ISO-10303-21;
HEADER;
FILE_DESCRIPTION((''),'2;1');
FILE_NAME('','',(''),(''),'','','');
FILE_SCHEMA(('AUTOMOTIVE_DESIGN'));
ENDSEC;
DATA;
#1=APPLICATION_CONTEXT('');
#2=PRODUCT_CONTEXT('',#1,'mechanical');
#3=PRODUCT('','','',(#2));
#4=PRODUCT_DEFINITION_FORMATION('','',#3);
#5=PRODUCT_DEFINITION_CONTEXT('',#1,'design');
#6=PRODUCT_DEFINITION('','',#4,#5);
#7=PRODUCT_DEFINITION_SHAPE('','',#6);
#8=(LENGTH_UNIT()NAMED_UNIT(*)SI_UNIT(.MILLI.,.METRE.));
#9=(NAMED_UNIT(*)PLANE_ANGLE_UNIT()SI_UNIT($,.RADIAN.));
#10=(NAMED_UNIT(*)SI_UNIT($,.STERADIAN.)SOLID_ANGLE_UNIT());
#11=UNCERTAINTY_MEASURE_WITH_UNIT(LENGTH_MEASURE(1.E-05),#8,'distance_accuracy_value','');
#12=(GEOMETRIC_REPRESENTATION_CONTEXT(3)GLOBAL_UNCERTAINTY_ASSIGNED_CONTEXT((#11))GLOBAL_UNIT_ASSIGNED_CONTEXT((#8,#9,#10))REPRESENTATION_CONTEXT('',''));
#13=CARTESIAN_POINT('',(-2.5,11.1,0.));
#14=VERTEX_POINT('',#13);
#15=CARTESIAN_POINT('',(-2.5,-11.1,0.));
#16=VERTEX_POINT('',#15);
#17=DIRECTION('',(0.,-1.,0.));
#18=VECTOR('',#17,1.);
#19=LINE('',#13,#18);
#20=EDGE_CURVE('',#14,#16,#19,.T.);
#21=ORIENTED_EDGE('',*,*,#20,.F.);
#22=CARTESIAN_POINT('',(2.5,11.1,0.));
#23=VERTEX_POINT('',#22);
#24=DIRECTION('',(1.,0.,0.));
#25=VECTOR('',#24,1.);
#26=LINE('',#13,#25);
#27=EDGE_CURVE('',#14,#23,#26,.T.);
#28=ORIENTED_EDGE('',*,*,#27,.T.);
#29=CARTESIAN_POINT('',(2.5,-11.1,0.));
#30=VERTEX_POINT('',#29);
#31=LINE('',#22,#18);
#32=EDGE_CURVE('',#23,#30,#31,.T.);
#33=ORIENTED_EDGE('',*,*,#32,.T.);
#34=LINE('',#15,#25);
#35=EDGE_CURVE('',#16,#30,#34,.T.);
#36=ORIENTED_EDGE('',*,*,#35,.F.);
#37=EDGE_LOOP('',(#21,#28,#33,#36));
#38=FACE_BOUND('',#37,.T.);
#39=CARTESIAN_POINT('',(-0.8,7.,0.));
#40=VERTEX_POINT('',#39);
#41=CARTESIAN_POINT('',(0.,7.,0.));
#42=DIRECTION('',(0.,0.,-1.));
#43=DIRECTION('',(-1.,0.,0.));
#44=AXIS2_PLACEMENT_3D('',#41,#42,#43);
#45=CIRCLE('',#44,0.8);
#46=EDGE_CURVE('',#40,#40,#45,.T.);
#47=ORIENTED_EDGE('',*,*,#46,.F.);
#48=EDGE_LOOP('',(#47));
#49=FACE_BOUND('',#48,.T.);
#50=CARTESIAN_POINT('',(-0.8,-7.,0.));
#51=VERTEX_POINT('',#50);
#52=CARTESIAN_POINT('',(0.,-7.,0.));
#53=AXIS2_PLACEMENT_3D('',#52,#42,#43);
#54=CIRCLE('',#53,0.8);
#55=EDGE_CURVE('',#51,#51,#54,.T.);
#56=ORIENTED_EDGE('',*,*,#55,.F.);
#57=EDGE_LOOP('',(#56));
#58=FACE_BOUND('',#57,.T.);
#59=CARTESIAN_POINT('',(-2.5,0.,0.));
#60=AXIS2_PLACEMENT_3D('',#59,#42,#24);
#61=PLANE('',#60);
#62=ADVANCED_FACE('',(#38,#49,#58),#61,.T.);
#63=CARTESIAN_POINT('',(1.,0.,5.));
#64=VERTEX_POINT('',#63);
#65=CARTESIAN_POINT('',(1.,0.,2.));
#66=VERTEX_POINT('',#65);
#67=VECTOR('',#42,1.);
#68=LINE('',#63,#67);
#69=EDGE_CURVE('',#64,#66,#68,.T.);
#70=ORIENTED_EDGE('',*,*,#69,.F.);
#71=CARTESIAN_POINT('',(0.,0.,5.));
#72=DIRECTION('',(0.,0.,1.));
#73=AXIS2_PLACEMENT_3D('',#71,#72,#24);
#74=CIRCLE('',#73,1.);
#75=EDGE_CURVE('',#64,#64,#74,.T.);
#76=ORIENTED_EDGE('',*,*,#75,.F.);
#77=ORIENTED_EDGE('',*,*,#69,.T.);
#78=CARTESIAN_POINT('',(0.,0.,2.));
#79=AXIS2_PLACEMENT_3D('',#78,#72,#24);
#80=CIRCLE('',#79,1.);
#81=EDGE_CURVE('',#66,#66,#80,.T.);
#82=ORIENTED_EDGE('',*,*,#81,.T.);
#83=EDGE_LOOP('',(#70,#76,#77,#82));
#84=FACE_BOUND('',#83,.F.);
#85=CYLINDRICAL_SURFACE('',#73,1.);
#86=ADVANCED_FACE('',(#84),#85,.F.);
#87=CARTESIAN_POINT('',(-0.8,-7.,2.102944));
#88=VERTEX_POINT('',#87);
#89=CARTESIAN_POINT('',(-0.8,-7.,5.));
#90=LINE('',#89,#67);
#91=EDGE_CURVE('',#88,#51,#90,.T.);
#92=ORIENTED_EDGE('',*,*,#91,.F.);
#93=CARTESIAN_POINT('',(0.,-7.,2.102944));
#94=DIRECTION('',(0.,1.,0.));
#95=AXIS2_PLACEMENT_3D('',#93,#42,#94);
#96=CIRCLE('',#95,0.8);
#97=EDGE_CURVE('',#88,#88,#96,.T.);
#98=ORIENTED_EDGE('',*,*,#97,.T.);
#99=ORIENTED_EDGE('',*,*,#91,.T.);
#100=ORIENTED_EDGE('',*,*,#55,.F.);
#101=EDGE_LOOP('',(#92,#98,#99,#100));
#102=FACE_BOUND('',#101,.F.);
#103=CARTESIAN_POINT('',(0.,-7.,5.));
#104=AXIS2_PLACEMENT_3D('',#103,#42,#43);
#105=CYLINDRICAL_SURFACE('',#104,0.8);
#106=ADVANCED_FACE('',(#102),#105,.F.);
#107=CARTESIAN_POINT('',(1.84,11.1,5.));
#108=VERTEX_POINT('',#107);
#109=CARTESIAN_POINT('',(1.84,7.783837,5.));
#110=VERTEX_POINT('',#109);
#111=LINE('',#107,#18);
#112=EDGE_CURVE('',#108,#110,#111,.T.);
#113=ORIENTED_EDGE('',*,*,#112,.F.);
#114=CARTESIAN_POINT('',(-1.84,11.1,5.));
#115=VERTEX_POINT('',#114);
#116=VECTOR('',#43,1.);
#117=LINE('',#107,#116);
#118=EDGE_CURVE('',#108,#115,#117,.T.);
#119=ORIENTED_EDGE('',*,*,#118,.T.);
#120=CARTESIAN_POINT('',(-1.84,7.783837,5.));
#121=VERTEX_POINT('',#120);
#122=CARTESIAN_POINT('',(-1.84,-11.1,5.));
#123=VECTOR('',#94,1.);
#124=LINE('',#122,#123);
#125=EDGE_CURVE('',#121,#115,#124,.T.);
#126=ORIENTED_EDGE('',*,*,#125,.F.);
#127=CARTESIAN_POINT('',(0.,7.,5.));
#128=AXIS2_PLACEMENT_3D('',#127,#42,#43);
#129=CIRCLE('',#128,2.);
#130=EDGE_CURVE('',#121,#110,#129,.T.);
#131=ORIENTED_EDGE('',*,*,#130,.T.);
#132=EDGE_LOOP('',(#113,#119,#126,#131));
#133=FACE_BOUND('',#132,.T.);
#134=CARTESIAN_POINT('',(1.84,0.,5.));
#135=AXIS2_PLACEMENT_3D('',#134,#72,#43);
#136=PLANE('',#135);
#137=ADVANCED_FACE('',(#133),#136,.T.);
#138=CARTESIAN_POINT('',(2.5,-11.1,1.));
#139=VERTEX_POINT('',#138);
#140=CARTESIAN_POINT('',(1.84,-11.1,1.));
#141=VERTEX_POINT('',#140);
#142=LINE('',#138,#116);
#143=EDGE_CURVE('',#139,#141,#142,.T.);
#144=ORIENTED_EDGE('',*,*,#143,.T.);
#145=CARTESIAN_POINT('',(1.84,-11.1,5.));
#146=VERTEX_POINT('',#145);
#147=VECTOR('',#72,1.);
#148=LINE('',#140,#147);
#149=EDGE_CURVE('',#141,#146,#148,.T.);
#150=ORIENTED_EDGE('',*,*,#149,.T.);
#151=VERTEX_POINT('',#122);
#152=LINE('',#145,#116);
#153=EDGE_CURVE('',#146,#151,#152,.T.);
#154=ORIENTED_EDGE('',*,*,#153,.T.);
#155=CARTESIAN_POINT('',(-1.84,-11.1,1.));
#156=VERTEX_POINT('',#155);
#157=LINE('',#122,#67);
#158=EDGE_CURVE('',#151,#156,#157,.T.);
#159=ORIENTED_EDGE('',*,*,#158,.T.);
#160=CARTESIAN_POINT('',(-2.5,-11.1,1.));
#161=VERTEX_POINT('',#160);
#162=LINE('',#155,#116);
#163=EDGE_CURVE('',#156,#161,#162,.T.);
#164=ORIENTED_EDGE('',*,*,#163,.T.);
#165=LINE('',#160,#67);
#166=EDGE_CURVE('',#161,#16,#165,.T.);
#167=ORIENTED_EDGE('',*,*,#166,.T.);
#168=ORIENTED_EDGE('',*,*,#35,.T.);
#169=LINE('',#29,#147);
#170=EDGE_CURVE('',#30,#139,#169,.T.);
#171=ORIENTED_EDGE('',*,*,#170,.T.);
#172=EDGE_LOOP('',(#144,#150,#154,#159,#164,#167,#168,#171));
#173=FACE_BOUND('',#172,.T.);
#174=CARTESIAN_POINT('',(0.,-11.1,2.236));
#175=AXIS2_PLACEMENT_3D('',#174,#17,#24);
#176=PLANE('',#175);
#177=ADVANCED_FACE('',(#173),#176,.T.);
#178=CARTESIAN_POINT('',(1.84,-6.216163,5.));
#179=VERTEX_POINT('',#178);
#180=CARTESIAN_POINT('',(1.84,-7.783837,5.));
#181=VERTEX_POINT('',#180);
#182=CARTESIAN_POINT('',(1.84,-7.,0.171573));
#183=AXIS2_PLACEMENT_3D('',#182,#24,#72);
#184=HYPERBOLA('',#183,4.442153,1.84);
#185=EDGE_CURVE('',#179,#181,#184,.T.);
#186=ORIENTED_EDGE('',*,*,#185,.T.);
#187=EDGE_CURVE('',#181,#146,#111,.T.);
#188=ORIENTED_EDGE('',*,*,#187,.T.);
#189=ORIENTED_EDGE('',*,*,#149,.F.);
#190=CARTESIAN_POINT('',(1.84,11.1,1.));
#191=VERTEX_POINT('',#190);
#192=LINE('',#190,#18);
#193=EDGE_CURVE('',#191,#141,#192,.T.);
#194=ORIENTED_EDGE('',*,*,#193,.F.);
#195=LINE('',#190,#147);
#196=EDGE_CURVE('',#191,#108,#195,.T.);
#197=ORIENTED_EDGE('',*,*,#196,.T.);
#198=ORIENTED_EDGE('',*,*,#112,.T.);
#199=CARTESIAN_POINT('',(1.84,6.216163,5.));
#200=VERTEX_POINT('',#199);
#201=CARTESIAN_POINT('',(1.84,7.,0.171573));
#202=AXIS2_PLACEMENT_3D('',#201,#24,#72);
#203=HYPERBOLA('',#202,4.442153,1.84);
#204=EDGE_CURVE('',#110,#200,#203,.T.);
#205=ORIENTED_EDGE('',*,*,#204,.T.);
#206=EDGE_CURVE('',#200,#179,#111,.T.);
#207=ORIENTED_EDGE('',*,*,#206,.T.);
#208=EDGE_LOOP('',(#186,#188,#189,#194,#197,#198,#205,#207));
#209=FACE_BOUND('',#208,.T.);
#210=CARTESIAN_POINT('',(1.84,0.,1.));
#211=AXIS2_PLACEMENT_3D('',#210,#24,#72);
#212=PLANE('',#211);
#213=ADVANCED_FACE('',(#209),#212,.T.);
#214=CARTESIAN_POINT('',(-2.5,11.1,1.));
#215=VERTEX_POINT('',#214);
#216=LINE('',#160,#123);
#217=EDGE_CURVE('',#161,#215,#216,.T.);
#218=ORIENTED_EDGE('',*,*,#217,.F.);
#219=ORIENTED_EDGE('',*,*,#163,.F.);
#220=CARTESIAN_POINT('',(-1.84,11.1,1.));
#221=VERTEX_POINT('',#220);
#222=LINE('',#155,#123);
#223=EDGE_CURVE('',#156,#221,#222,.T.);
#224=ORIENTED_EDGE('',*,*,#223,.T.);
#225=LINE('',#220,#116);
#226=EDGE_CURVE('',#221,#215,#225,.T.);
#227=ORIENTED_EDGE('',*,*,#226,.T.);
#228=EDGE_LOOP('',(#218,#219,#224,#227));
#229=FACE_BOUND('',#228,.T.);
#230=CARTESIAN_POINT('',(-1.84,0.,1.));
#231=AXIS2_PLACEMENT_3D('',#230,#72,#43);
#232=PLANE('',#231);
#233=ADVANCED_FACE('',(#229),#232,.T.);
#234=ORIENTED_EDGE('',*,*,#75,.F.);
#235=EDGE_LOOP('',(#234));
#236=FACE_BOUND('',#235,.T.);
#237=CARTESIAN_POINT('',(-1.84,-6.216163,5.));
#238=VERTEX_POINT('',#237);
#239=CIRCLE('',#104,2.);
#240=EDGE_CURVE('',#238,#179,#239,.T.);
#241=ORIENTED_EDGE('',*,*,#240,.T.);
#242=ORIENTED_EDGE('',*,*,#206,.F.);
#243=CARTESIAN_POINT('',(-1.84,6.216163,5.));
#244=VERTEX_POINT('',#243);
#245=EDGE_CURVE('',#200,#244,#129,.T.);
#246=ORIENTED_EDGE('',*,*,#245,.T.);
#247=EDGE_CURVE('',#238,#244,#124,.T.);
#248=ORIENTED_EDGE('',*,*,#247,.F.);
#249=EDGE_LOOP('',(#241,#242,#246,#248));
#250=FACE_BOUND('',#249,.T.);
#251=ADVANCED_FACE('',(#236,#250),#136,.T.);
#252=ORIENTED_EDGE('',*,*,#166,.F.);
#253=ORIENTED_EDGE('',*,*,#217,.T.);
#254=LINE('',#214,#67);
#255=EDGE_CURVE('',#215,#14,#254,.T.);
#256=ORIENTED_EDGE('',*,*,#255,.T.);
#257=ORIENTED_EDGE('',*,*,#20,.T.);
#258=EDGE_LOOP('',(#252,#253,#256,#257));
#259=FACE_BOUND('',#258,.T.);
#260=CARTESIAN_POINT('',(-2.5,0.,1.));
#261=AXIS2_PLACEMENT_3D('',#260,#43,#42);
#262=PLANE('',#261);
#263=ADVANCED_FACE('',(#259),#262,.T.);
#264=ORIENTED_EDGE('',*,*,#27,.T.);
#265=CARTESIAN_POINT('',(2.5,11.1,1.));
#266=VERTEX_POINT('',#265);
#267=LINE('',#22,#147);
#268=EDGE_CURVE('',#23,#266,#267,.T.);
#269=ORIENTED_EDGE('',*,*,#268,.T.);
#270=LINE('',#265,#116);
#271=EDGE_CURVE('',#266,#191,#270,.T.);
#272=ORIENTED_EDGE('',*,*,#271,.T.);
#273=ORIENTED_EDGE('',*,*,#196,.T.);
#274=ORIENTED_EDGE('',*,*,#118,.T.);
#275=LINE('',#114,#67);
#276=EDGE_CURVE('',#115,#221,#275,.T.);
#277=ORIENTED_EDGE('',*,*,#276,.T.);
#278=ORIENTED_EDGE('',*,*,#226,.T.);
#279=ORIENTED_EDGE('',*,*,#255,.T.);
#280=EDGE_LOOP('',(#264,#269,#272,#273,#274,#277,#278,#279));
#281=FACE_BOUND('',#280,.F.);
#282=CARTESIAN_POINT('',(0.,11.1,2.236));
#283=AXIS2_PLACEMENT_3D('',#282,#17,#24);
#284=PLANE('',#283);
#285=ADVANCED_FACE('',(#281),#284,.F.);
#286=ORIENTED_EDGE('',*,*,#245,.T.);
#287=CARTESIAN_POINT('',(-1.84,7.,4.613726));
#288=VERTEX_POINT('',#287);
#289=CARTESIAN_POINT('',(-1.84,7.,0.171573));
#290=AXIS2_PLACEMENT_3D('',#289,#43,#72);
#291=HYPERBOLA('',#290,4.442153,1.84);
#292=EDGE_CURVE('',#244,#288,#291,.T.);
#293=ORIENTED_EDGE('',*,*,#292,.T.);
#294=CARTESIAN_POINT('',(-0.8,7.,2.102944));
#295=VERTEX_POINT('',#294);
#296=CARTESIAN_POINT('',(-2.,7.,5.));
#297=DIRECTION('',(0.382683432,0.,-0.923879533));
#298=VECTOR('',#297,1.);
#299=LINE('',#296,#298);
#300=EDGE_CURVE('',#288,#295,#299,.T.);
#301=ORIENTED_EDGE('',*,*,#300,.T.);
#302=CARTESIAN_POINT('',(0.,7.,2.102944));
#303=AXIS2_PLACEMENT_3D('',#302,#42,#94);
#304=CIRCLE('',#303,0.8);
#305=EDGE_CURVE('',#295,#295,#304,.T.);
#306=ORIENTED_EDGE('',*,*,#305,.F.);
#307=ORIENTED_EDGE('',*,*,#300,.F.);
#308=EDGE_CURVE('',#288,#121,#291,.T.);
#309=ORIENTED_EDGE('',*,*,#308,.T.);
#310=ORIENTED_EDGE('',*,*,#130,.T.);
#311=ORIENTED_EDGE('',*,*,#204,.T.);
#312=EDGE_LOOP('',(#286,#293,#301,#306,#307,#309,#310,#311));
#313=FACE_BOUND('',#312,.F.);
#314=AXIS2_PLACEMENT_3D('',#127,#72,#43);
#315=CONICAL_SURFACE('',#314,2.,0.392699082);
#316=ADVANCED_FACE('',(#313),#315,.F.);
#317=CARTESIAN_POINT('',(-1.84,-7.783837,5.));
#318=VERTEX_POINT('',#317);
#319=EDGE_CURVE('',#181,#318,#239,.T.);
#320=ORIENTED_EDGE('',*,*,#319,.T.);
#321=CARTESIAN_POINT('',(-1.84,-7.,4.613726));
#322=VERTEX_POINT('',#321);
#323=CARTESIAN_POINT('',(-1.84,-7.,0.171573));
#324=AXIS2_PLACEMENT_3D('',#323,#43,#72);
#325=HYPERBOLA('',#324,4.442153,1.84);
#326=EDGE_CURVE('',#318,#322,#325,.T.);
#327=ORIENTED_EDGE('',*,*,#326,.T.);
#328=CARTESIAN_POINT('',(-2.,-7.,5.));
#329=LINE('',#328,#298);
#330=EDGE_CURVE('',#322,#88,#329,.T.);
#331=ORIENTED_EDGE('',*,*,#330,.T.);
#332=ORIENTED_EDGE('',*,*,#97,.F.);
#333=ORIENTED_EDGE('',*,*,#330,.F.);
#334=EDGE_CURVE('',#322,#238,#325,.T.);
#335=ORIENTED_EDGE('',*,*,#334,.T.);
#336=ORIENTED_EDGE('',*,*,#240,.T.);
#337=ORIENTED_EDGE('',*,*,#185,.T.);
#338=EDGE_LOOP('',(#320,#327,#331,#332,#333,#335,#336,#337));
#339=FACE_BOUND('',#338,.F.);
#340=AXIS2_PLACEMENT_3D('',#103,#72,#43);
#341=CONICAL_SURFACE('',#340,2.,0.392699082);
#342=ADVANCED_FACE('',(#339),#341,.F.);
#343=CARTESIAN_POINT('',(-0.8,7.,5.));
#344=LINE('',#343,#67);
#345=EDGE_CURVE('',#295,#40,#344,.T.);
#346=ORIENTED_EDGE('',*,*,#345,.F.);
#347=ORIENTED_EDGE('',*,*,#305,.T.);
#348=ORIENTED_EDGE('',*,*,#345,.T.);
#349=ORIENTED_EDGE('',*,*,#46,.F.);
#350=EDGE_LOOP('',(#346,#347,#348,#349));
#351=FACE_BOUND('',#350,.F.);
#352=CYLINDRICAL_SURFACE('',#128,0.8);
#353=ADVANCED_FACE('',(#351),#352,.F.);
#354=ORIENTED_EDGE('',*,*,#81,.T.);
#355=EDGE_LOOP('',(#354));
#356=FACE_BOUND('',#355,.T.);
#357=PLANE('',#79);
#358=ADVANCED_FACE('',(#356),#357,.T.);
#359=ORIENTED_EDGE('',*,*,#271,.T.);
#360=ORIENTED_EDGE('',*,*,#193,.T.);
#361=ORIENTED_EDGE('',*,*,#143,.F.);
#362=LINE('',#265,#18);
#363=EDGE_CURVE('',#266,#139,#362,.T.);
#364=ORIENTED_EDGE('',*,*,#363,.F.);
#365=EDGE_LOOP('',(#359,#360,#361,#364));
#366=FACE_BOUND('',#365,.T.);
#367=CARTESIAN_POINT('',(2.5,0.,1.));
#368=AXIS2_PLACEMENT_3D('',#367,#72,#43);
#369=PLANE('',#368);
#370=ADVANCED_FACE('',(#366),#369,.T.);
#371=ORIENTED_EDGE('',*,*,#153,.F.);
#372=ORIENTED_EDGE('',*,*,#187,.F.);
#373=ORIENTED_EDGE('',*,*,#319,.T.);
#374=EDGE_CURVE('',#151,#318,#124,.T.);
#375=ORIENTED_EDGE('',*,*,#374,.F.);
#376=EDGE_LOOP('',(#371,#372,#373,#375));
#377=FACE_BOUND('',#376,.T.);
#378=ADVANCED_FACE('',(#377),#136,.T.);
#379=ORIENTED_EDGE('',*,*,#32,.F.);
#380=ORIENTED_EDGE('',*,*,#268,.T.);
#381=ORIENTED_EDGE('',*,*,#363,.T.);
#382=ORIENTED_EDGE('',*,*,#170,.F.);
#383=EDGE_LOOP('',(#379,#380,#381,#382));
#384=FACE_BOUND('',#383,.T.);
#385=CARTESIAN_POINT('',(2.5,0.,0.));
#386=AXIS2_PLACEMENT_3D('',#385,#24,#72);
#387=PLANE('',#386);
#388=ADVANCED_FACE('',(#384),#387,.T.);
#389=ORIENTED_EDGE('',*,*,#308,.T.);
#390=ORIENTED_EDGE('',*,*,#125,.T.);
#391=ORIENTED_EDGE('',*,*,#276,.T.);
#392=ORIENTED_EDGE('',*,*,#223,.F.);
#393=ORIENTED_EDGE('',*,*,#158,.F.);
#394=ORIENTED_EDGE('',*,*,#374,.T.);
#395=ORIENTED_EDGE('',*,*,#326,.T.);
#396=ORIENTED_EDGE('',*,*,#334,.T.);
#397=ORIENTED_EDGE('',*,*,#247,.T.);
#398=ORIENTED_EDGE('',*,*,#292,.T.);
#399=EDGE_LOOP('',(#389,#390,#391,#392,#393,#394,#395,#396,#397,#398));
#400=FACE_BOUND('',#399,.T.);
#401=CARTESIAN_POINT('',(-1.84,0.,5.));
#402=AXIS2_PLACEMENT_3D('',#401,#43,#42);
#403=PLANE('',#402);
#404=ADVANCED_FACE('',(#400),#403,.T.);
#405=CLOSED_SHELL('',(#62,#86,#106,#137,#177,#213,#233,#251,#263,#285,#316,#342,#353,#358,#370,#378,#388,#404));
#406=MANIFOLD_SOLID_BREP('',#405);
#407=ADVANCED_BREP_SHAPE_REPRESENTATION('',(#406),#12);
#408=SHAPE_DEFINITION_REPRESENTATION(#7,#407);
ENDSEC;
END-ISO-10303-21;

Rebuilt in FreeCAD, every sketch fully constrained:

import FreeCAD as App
import Part
import Sketcher
from FreeCAD import Vector


def add_polygon(sketch, points):
    """Adds a closed chain of lines whose ends are joined by coincident constraints."""
    first, n = sketch.GeometryCount, len(points)
    for a, b in zip(points, points[1:] + points[:1]):
        sketch.addGeometry(Part.LineSegment(App.Vector(*a, 0), App.Vector(*b, 0)), False)
    for i in range(n):
        sketch.addConstraint(Sketcher.Constraint("Coincident", first + i, 2, first + (i + 1) % n, 1))

doc = App.newDocument("Part")
body = doc.addObject("PartDesign::Body", "Body")

# Sketch on XZ plane
sketch1 = body.newObject("Sketcher::SketchObject", "Sketch")
sketch1.AttachmentSupport = (doc.getObject("XZ_Plane"), [""])
sketch1.MapMode = "FlatFace"
add_polygon(sketch1, [(-2.5, 1), (-2.5, 0), (2.5, 0), (2.5, 1), (1.8, 1), (1.8, 5), (-1.8, 5), (-1.8, 1)])  # lines 0-7
sketch1.addConstraint([
    Sketcher.Constraint("Vertical", 0),
    Sketcher.Constraint("Horizontal", 1),
    Sketcher.Constraint("Vertical", 2),
    Sketcher.Constraint("Horizontal", 3),
    Sketcher.Constraint("Vertical", 4),
    Sketcher.Constraint("Horizontal", 5),
    Sketcher.Constraint("Vertical", 6),
    Sketcher.Constraint("Horizontal", 7),
    Sketcher.Constraint("Symmetric", 0, 2, 1, 2, -1, 1),
    Sketcher.Constraint("Symmetric", 3, 2, 6, 2, -2),
    Sketcher.Constraint("DistanceX", 1, 1, 1, 2, 5.0),
    Sketcher.Constraint("DistanceY", 0, 2, 0, 1, 1.0),
    Sketcher.Constraint("DistanceY", 4, 1, 4, 2, 4.0),
    Sketcher.Constraint("DistanceX", 3, 2, 3, 1, 0.66),
])
pad1 = body.newObject("PartDesign::Pad", "Pad")
pad1.Profile = sketch1
pad1.Length = 22.2
pad1.Midplane = True

# Sketch on XY plane
sketch2 = body.newObject("Sketcher::SketchObject", "Sketch001")
sketch2.AttachmentSupport = (doc.getObject("XY_Plane"), [""])
sketch2.MapMode = "FlatFace"
sketch2.AttachmentOffset = App.Placement(Vector(0, 0, 5), App.Rotation())
sketch2.addGeometry([
    Part.Circle(Vector(0, 7, 0), Vector(0, 0, 1), 0.8),
    Part.Circle(Vector(0, -7, 0), Vector(0, 0, 1), 0.8),
], False)
sketch2.addConstraint([
    Sketcher.Constraint("Equal", 0, 1),
    Sketcher.Constraint("Symmetric", 0, 3, 1, 3, -1, 1),
    Sketcher.Constraint("PointOnObject", 0, 3, -2),
    Sketcher.Constraint("Diameter", 0, 1.6),
    Sketcher.Constraint("DistanceY", -1, 1, 0, 3, 7.0),
])
doc.recompute()
hole = body.newObject("PartDesign::Hole", "Hole")
hole.Profile = sketch2
hole.ThreadType = "None"
hole.Diameter = 1.6
hole.DepthType = "ThroughAll"
hole.HoleCutType = "Countersink"
hole.HoleCutDiameter = 4
hole.HoleCutCountersinkAngle = 45

# Sketch on XY plane
sketch3 = body.newObject("Sketcher::SketchObject", "Sketch002")
sketch3.AttachmentSupport = (doc.getObject("XY_Plane"), [""])
sketch3.MapMode = "FlatFace"
sketch3.AttachmentOffset = App.Placement(Vector(0, 0, 5), App.Rotation())
sketch3.addGeometry(Part.Circle(Vector(0, 0, 0), Vector(0, 0, 1), 1), False)
sketch3.addConstraint([
    Sketcher.Constraint("Coincident", 0, 3, -1, 1),
    Sketcher.Constraint("Diameter", 0, 2.0),
])
pocket1 = body.newObject("PartDesign::Pocket", "Pocket")
pocket1.Profile = sketch3
pocket1.Length = 3

doc.recompute()
